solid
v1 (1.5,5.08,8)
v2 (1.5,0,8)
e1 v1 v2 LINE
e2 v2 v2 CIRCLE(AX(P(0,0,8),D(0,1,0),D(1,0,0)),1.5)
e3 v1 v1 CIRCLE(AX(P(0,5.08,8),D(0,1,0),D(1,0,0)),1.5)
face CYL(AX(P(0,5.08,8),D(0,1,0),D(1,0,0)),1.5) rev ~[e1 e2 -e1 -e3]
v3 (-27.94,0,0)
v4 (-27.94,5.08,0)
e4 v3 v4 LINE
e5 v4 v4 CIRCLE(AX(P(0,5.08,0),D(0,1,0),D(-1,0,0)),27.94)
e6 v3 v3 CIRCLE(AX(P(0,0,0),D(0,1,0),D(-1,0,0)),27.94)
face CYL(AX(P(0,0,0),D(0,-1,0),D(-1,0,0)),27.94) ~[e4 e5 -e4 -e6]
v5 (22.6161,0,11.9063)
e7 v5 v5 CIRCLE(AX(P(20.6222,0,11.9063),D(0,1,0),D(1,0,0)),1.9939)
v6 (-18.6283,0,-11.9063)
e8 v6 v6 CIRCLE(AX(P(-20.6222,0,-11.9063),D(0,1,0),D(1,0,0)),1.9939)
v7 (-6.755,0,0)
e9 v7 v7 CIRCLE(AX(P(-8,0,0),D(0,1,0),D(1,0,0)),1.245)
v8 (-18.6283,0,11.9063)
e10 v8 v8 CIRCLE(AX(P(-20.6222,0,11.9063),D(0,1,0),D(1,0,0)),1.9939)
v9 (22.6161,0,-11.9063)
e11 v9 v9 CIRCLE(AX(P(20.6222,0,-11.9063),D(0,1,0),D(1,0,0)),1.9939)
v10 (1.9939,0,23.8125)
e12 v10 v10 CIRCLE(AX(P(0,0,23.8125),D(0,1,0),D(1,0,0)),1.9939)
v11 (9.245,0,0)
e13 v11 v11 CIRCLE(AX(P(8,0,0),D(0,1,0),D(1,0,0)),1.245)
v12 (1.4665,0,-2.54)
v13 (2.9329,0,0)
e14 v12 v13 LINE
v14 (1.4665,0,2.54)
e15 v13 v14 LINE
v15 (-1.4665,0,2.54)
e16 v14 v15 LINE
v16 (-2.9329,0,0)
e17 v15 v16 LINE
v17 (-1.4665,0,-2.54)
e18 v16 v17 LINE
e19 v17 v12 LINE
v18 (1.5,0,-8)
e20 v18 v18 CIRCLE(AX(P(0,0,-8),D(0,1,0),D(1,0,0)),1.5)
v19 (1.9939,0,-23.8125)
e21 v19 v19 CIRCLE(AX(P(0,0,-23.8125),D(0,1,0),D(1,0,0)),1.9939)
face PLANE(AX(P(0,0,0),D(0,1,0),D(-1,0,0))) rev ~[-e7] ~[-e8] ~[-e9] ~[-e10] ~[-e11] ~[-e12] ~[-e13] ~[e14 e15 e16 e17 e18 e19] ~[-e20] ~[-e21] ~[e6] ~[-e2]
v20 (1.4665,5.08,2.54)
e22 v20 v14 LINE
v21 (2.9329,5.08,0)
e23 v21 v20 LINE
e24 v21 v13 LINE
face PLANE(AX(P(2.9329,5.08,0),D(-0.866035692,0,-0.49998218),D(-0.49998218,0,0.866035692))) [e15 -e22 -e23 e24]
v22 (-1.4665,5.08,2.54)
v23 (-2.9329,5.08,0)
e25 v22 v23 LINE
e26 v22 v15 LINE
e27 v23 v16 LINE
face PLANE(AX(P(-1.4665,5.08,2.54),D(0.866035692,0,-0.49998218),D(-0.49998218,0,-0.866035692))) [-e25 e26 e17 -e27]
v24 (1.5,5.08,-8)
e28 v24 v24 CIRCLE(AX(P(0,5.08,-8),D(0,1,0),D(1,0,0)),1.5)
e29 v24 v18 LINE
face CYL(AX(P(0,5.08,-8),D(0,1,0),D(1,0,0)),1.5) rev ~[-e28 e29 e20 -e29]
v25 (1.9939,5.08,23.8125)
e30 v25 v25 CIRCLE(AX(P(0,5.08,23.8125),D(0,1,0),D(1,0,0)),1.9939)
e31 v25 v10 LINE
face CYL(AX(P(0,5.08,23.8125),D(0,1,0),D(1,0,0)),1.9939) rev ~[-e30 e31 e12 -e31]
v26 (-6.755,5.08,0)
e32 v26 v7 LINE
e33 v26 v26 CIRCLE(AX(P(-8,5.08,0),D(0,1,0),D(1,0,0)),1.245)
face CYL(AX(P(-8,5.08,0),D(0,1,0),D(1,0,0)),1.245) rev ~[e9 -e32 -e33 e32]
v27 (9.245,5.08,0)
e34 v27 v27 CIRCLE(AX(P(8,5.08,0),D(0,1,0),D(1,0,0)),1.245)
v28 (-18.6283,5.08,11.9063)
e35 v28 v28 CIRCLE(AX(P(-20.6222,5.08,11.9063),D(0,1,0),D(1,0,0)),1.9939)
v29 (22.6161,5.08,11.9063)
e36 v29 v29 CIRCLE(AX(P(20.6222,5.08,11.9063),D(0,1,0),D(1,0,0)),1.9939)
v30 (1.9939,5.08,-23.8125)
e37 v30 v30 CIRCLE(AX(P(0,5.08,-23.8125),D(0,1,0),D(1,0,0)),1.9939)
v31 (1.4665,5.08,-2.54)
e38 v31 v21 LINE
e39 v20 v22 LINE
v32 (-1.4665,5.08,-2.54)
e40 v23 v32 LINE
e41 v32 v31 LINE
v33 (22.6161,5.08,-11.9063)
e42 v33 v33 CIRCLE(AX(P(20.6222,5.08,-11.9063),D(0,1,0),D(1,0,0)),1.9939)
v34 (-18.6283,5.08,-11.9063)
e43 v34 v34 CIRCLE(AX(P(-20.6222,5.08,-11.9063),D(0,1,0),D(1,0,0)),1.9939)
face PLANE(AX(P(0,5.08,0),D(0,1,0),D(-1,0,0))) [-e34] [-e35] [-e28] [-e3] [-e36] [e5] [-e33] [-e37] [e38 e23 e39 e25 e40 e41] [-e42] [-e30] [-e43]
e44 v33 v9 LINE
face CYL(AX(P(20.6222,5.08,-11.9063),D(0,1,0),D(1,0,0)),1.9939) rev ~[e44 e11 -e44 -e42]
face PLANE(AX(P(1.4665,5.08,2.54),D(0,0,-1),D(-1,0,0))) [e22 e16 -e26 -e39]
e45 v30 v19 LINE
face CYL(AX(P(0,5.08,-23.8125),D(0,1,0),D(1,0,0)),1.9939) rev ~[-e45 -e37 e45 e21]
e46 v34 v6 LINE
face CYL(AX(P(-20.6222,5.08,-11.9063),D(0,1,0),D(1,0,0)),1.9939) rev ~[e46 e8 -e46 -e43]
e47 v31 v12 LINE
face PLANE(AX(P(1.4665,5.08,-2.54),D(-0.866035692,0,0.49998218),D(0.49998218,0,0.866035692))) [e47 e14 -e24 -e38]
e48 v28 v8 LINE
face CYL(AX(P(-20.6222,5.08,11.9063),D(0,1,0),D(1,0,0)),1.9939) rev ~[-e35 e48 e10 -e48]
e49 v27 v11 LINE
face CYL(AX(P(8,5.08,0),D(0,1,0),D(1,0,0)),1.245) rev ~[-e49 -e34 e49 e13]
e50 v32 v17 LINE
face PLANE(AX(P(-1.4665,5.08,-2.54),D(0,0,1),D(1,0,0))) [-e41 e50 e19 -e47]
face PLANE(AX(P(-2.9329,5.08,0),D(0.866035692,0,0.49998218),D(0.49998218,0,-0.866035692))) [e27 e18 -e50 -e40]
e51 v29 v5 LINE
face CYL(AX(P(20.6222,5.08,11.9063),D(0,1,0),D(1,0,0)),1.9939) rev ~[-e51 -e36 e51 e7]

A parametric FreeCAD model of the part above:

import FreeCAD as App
import Part
import Sketcher
from FreeCAD import Vector
Q = App.Units.Quantity


def add_polygon(sketch, points):
    """Adds a closed chain of lines whose ends are joined by coincident constraints."""
    first, n = sketch.GeometryCount, len(points)
    for a, b in zip(points, points[1:] + points[:1]):
        sketch.addGeometry(Part.LineSegment(App.Vector(*a, 0), App.Vector(*b, 0)), False)
    for i in range(n):
        sketch.addConstraint(Sketcher.Constraint("Coincident", first + i, 2, first + (i + 1) % n, 1))

doc = App.newDocument("Part")
params = doc.addObject("Spreadsheet::Sheet", "Params")
for row, (alias, value) in enumerate([
    ("sketch1_diameter", "2.2 in"),
    ("pad1_length", "0.2 in"),
    ("sketch2_diameter", "0.157 in"),
    ("pocket1_length", "1 in"),
    ("pocket2_length", "1 in"),
], start=1):
    params.set(f"A{row}", alias)
    params.set(f"B{row}", "=" + value)
    params.setAlias(f"B{row}", alias)

body = doc.addObject("PartDesign::Body", "Body")

# Sketch on XZ plane
sketch1 = body.newObject("Sketcher::SketchObject", "Sketch")
sketch1.AttachmentSupport = (doc.getObject("XZ_Plane"), [""])
sketch1.MapMode = "FlatFace"
sketch1.addGeometry(Part.Circle(Vector(0, 0, 0), Vector(0, 0, 1), 28), False)
sketch1.addConstraint([
    Sketcher.Constraint("Coincident", 0, 3, -1, 1),
    Sketcher.Constraint("Diameter", 0, Q("2.2 in")),
])
sketch1.setExpression("Constraints[1]", "Params.sketch1_diameter")
pad1 = body.newObject("PartDesign::Pad", "Pad")
pad1.Profile = sketch1
pad1.setExpression("Length", "Params.pad1_length")
pad1.Reversed = True

# Sketch on XZ plane
sketch2 = body.newObject("Sketcher::SketchObject", "Sketch001")
sketch2.AttachmentSupport = (doc.getObject("XZ_Plane"), [""])
sketch2.MapMode = "FlatFace"
sketch2.AttachmentOffset = App.Placement(Vector(0, 0, -0.2 * 25.4), App.Rotation())
sketch2.addGeometry([
    Part.Circle(Vector(0, -23.8, 0), Vector(0, 0, 1), 2),  # 0
    Part.Circle(Vector(20.6, -11.9, 0), Vector(0, 0, 1), 2),  # 1
    Part.Circle(Vector(20.6, 11.9, 0), Vector(0, 0, 1), 2),  # 2
    Part.Circle(Vector(0, 23.8, 0), Vector(0, 0, 1), 2),  # 3
    Part.Circle(Vector(-20.6, 11.9, 0), Vector(0, 0, 1), 2),  # 4
    Part.Circle(Vector(-20.6, -11.9, 0), Vector(0, 0, 1), 2),  # 5
], False)
sketch2.addConstraint([
    Sketcher.Constraint("Equal", 0, 1),
    Sketcher.Constraint("Equal", 1, 2),
    Sketcher.Constraint("Equal", 2, 3),
    Sketcher.Constraint("Equal", 3, 4),
    Sketcher.Constraint("Equal", 4, 5),
    Sketcher.Constraint("Symmetric", 0, 3, 3, 3, -1, 1),
    Sketcher.Constraint("Symmetric", 1, 3, 4, 3, -1, 1),
    Sketcher.Constraint("Symmetric", 2, 3, 5, 3, -1, 1),
    Sketcher.Constraint("Symmetric", 2, 3, 4, 3, -2),
    Sketcher.Constraint("PointOnObject", 0, 3, -2),
    Sketcher.Constraint("Diameter", 0, Q("0.157 in")),
    Sketcher.Constraint("DistanceY", 0, 3, -1, 1, Q("0.9375 in")),
    Sketcher.Constraint("DistanceY", 1, 3, -1, 1, Q("0.468752 in")),
    Sketcher.Constraint("DistanceX", -1, 1, 1, 3, Q("0.8119 in")),
])
sketch2.setExpression("Constraints[10]", "Params.sketch2_diameter")
pocket1 = body.newObject("PartDesign::Pocket", "Pocket")
pocket1.Profile = sketch2
pocket1.setExpression("Length", "Params.pocket1_length")
pocket1.Reversed = True

# Sketch on XZ plane
sketch3 = body.newObject("Sketcher::SketchObject", "Sketch002")
sketch3.AttachmentSupport = (doc.getObject("XZ_Plane"), [""])
sketch3.MapMode = "FlatFace"
sketch3.AttachmentOffset = App.Placement(Vector(0, 0, -0.2 * 25.4), App.Rotation())
add_polygon(sketch3, [(1.5, 2.5), (2.9, 0), (1.5, -2.5), (-1.5, -2.5), (-2.9, 0), (-1.5, 2.5)])  # lines 0-5
sketch3.addGeometry(Part.Circle(Vector(-8, 0, 0), Vector(0, 0, 1), 1.2), False)  # 6
sketch3.addGeometry(Part.Circle(Vector(8, 0, 0), Vector(0, 0, 1), 1.2), False)  # 7
sketch3.addGeometry(Part.Circle(Vector(0, -8, 0), Vector(0, 0, 1), 1.5), False)  # 8
sketch3.addGeometry(Part.Circle(Vector(0, 8, 0), Vector(0, 0, 1), 1.5), False)  # 9
sketch3.addConstraint([
    Sketcher.Constraint("Horizontal", 2),
    Sketcher.Constraint("Horizontal", 5),
    Sketcher.Constraint("Equal", 6, 7),
    Sketcher.Constraint("Equal", 8, 9),
    Sketcher.Constraint("Symmetric", 6, 3, 7, 3, -1, 1),
    Sketcher.Constraint("Symmetric", 8, 3, 9, 3, -1, 1),
    Sketcher.Constraint("Symmetric", 0, 2, 3, 2, -1, 1),
    Sketcher.Constraint("Symmetric", 1, 2, 4, 2, -1, 1),
    Sketcher.Constraint("PointOnObject", 6, 3, -1),
    Sketcher.Constraint("PointOnObject", 8, 3, -2),
    Sketcher.Constraint("PointOnObject", 0, 2, -1),
    Sketcher.Constraint("Parallel", 0, 3),
    Sketcher.Constraint("Vertical", 2, 2, 4, 2),
    Sketcher.Constraint("DistanceY", 2, 2, 4, 2, Q("0.2 in")),
    Sketcher.Constraint("Angle", 0, Q("-60.0012 deg")),
    Sketcher.Constraint("Diameter", 8, Q("0.1181 in")),
    Sketcher.Constraint("Diameter", 6, Q("2.49 mm")),
    Sketcher.Constraint("DistanceX", 2, 2, 2, 1, Q("2.933 mm")),
    Sketcher.Constraint("DistanceX", 0, 2, 7, 3, Q("0.1995 in")),
    Sketcher.Constraint("DistanceY", 8, 3, -1, 1, Q("8 mm")),
])
pocket2 = body.newObject("PartDesign::Pocket", "Pocket001")
pocket2.Profile = sketch3
pocket2.setExpression("Length", "Params.pocket2_length")
pocket2.Reversed = True

doc.recompute()
